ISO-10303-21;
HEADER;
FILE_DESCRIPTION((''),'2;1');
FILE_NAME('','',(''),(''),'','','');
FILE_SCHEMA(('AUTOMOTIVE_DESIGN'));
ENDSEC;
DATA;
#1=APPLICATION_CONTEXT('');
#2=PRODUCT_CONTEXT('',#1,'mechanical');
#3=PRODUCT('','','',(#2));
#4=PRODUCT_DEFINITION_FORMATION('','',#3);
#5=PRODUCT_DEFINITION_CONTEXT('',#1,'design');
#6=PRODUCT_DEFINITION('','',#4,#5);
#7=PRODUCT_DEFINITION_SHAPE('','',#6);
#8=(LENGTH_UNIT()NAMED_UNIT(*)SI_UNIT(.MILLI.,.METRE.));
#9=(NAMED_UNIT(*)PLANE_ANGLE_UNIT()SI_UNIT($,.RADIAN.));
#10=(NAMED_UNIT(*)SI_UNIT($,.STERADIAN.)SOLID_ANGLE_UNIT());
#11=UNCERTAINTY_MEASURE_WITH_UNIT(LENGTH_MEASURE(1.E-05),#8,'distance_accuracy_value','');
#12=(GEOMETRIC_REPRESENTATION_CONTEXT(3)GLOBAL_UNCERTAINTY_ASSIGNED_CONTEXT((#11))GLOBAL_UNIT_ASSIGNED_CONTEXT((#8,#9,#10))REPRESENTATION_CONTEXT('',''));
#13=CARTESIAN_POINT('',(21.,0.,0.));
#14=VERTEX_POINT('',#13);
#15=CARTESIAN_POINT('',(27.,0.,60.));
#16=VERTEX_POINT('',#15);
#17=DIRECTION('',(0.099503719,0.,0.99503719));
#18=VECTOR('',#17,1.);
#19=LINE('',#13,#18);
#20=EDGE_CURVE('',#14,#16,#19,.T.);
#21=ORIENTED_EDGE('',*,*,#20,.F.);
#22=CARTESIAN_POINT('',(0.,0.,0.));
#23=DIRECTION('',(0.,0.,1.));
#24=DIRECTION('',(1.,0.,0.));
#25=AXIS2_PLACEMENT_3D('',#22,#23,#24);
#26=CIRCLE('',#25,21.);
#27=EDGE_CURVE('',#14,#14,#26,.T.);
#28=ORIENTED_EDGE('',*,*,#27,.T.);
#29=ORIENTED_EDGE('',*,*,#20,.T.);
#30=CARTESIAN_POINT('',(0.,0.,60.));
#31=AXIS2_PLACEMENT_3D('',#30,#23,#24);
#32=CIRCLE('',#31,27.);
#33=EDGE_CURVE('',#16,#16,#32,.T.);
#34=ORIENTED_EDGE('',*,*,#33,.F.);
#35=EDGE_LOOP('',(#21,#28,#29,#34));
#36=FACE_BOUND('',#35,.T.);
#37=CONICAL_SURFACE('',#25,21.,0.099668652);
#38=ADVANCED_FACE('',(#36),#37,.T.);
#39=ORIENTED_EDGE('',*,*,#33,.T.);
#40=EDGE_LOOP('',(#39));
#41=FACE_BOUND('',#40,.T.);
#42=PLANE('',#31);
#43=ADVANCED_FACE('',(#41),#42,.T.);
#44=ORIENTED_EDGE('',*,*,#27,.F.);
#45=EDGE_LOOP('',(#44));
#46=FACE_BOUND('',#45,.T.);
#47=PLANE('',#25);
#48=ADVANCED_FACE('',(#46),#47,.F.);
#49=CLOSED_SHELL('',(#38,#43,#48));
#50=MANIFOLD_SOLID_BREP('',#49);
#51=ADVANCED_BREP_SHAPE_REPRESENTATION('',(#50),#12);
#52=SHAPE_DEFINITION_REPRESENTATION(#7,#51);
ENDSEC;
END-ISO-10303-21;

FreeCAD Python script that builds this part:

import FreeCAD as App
import Part
import Sketcher
from FreeCAD import Vector
Q = App.Units.Quantity


def add_polygon(sketch, points):
    """Adds a closed chain of lines whose ends are joined by coincident constraints."""
    first, n = sketch.GeometryCount, len(points)
    for a, b in zip(points, points[1:] + points[:1]):
        sketch.addGeometry(Part.LineSegment(App.Vector(*a, 0), App.Vector(*b, 0)), False)
    for i in range(n):
        sketch.addConstraint(Sketcher.Constraint("Coincident", first + i, 2, first + (i + 1) % n, 1))

doc = App.newDocument("Part")
body = doc.addObject("PartDesign::Body", "Body")

# Sketch on XZ plane
sketch1 = doc.addObject("Sketcher::SketchObject", "Sketch")
body.addObject(sketch1)
sketch1.AttachmentSupport = (doc.XZ_Plane, [""])
sketch1.MapMode = "FlatFace"
add_polygon(sketch1, [(0, 0), (21, 0), (27, 60), (0, 60)])  # lines 0-3
sketch1.addConstraint([
    Sketcher.Constraint("Horizontal", 0),
    Sketcher.Constraint("Horizontal", 2),
    Sketcher.Constraint("Vertical", 3),
    Sketcher.Constraint("Coincident", 3, 2, -1, 1),
    Sketcher.Constraint("DistanceX", 0, 1, 0, 2, Q("21 mm")),
    Sketcher.Constraint("DistanceX", 2, 2, 2, 1, Q("27 mm")),
    Sketcher.Constraint("DistanceY", 3, 2, 3, 1, Q("60 mm")),
])
revolution = doc.addObject("PartDesign::Revolution", "Revolution")
body.addObject(revolution)
revolution.Profile = sketch1
revolution.ReferenceAxis = (sketch1, ["V_Axis"])
revolution.Angle = 360

doc.recompute()
